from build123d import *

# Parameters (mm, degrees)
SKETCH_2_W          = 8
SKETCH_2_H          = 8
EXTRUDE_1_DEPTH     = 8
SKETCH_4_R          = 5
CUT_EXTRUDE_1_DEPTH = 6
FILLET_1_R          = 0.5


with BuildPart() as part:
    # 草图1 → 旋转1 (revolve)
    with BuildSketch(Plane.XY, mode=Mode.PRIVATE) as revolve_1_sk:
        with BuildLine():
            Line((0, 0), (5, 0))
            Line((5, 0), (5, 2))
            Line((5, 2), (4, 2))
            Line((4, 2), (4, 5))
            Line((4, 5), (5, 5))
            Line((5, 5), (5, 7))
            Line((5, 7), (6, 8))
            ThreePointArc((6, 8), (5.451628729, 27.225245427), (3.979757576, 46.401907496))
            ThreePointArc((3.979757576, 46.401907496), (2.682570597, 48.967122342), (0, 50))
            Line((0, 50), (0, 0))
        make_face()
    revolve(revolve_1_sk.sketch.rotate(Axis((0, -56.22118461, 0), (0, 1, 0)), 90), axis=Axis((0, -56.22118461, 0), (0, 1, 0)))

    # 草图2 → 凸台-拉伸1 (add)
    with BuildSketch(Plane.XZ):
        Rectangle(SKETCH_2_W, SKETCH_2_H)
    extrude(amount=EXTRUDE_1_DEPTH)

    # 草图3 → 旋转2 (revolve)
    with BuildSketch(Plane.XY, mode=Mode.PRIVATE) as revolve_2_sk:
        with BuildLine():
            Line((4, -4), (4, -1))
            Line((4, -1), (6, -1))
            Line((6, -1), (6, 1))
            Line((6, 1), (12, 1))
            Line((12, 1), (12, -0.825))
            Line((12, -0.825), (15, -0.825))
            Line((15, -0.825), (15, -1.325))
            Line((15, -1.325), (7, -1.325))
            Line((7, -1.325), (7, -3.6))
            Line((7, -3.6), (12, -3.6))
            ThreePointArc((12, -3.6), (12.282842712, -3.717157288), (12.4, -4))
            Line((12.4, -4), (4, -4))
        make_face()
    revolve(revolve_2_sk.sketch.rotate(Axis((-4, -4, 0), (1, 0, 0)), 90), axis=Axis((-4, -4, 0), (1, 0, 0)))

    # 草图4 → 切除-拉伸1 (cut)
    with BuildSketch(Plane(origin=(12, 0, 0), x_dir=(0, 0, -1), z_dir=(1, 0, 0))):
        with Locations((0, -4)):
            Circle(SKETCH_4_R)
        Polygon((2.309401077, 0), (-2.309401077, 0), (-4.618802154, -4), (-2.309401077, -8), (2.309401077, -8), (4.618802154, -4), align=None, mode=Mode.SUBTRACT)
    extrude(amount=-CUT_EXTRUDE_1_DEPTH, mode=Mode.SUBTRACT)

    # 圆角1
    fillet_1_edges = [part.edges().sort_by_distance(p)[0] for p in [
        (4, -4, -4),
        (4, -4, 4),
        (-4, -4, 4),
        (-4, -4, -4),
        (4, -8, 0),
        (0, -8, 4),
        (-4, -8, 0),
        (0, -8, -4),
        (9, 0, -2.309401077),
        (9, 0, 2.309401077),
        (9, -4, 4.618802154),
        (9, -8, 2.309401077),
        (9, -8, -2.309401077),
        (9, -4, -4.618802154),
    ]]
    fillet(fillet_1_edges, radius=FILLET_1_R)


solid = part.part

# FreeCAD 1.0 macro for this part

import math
import FreeCAD as App
import Part
import Sketcher

V = App.Vector
Q = App.Units.Quantity


def edges_at(feature, points):
    """Names of the edges that pass closest to the given points."""
    edges = feature.Shape.Edges
    near = lambda p: min(range(len(edges)), key=lambda i: edges[i].distToShape(Part.Vertex(*p))[0])
    return sorted({f"Edge{near(p) + 1}" for p in points})


def add_polygon(sketch, points):
    """Adds a closed chain of lines whose ends are joined by coincident constraints."""
    first, n = sketch.GeometryCount, len(points)
    for a, b in zip(points, points[1:] + points[:1]):
        sketch.addGeometry(Part.LineSegment(App.Vector(*a, 0), App.Vector(*b, 0)), False)
    for i in range(n):
        sketch.addConstraint(Sketcher.Constraint("Coincident", first + i, 2, first + (i + 1) % n, 1))

doc = App.newDocument("Part")
body = doc.addObject("PartDesign::Body", "Body")

sketch1 = doc.addObject("Sketcher::SketchObject", "Sketch")
body.addObject(sketch1)
sketch1.AttachmentSupport = (doc.XY_Plane, [""])
sketch1.MapMode = "FlatFace"
sketch1.addGeometry([
    Part.LineSegment(V(0, 0, 0), V(5, 0, 0)),
    Part.LineSegment(V(5, 0, 0), V(5, 2, 0)),
    Part.LineSegment(V(5, 2, 0), V(4, 2, 0)),
    Part.LineSegment(V(4, 2, 0), V(4, 5, 0)),
    Part.LineSegment(V(4, 5, 0), V(5, 5, 0)),
    Part.LineSegment(V(5, 5, 0), V(5, 7, 0)),
    Part.LineSegment(V(5, 7, 0), V(6, 8, 0)),
    Part.ArcOfCircle(Part.Circle(V(-394, 6.2, 0), V(0, 0, 1), 400), math.radians(0.26), math.radians(5.77)),
    Part.ArcOfCircle(Part.Circle(V(0, 46, 0), V(0, 0, 1), 4), math.radians(6), math.radians(90)),
    Part.LineSegment(V(0, 50, 0), V(0, 0, 0)),
], False)
sketch1.addConstraint([
    Sketcher.Constraint("Coincident", 0, 2, 1, 1),
    Sketcher.Constraint("Coincident", 1, 2, 2, 1),
    Sketcher.Constraint("Coincident", 2, 2, 3, 1),
    Sketcher.Constraint("Coincident", 3, 2, 4, 1),
    Sketcher.Constraint("Coincident", 4, 2, 5, 1),
    Sketcher.Constraint("Coincident", 5, 2, 6, 1),
    Sketcher.Constraint("Coincident", 6, 2, 7, 1),
    Sketcher.Constraint("Tangent", 7, 2, 8, 1),
    Sketcher.Constraint("Coincident", 8, 2, 9, 1),
    Sketcher.Constraint("Coincident", 9, 2, 0, 1),
    Sketcher.Constraint("Horizontal", 0),
    Sketcher.Constraint("Vertical", 1),
    Sketcher.Constraint("Horizontal", 2),
    Sketcher.Constraint("Vertical", 3),
    Sketcher.Constraint("Horizontal", 4),
    Sketcher.Constraint("Vertical", 5),
    Sketcher.Constraint("Vertical", 9),
    Sketcher.Constraint("Coincident", 9, 2, -1, 1),
    Sketcher.Constraint("PointOnObject", 8, 3, -2),
    Sketcher.Constraint("Vertical", 1, 2, 4, 2),
    Sketcher.Constraint("Equal", 1, 5),
    Sketcher.Constraint("Radius", 7, Q("400 mm")),
    Sketcher.Constraint("Radius", 8, Q("4 mm")),
    Sketcher.Constraint("DistanceX", 0, 1, 0, 2, Q("5 mm")),
    Sketcher.Constraint("DistanceX", 2, 2, 2, 1, Q("1 mm")),
    Sketcher.Constraint("DistanceY", 1, 1, 1, 2, Q("2 mm")),
    Sketcher.Constraint("DistanceY", 3, 1, 3, 2, Q("3 mm")),
    Sketcher.Constraint("DistanceY", 9, 2, 9, 1, Q("50 mm")),
    Sketcher.Constraint("Angle", 6, Q("45 deg")),
    Sketcher.Constraint("DistanceX", -1, 1, 6, 2, Q("6 mm")),
])
revolution = doc.addObject("PartDesign::Revolution", "Revolution")
body.addObject(revolution)
revolution.Profile = sketch1
revolution.ReferenceAxis = (sketch1, ["V_Axis"])
revolution.Angle = 360

sketch2 = doc.addObject("Sketcher::SketchObject", "Sketch001")
body.addObject(sketch2)
sketch2.AttachmentSupport = (doc.XZ_Plane, [""])
sketch2.MapMode = "FlatFace"
add_polygon(sketch2, [(-4, 4), (-4, -4), (4, -4), (4, 4)])
sketch2.addConstraint([
    Sketcher.Constraint("Vertical", 0),
    Sketcher.Constraint("Horizontal", 1),
    Sketcher.Constraint("Vertical", 2),
    Sketcher.Constraint("Horizontal", 3),
    Sketcher.Constraint("Symmetric", 0, 2, 2, 2, -1, 1),
    Sketcher.Constraint("Equal", 3, 0),
    Sketcher.Constraint("DistanceX", 1, 1, 1, 2, Q("8 mm")),
])
pad1 = doc.addObject("PartDesign::Pad", "Pad")
body.addObject(pad1)
pad1.Profile = sketch2
pad1.Length = 8

sketch3 = doc.addObject("Sketcher::SketchObject", "Sketch002")
body.addObject(sketch3)
sketch3.AttachmentSupport = (doc.XY_Plane, [""])
sketch3.MapMode = "FlatFace"
sketch3.addGeometry([
    Part.LineSegment(V(4, -1, 0), V(4, -4, 0)),
    Part.LineSegment(V(4, -4, 0), V(12.4, -4, 0)),
    Part.ArcOfCircle(Part.Circle(V(12, -4, 0), V(0, 0, 1), 0.4), math.radians(0), math.radians(90)),
    Part.LineSegment(V(12, -3.6, 0), V(7, -3.6, 0)),
    Part.LineSegment(V(7, -3.6, 0), V(7, -1.32, 0)),
    Part.LineSegment(V(7, -1.32, 0), V(15, -1.32, 0)),
    Part.LineSegment(V(15, -1.32, 0), V(15, -0.82, 0)),
    Part.LineSegment(V(15, -0.82, 0), V(12, -0.82, 0)),
    Part.LineSegment(V(12, -0.82, 0), V(12, 1, 0)),
    Part.LineSegment(V(12, 1, 0), V(6, 1, 0)),
    Part.LineSegment(V(6, 1, 0), V(6, -1, 0)),
    Part.LineSegment(V(6, -1, 0), V(4, -1, 0)),
], False)
sketch3.addGeometry(Part.LineSegment(V(4, -4, 0), V(15, -4, 0)), True)
sketch3.addConstraint([
    Sketcher.Constraint("Coincident", 0, 2, 1, 1),
    Sketcher.Constraint("Coincident", 1, 2, 2, 1),
    Sketcher.Constraint("Tangent", 2, 2, 3, 1),
    Sketcher.Constraint("Coincident", 3, 2, 4, 1),
    Sketcher.Constraint("Coincident", 4, 2, 5, 1),
    Sketcher.Constraint("Coincident", 5, 2, 6, 1),
    Sketcher.Constraint("Coincident", 6, 2, 7, 1),
    Sketcher.Constraint("Coincident", 7, 2, 8, 1),
    Sketcher.Constraint("Coincident", 8, 2, 9, 1),
    Sketcher.Constraint("Coincident", 9, 2, 10, 1),
    Sketcher.Constraint("Coincident", 10, 2, 11, 1),
    Sketcher.Constraint("Coincident", 11, 2, 0, 1),
    Sketcher.Constraint("Vertical", 0),
    Sketcher.Constraint("Horizontal", 1),
    Sketcher.Constraint("Horizontal", 3),
    Sketcher.Constraint("Vertical", 4),
    Sketcher.Constraint("Horizontal", 5),
    Sketcher.Constraint("Vertical", 6),
    Sketcher.Constraint("Horizontal", 7),
    Sketcher.Constraint("Vertical", 8),
    Sketcher.Constraint("Horizontal", 9),
    Sketcher.Constraint("Vertical", 10),
    Sketcher.Constraint("Horizontal", 11),
    Sketcher.Constraint("Horizontal", 12),
    Sketcher.Constraint("Coincident", 12, 1, 0, 2),
    Sketcher.Constraint("Horizontal", 2, 3, 0, 2),
    Sketcher.Constraint("Vertical", 2, 2, 7, 2),
    Sketcher.Constraint("Vertical", 6, 2, 12, 2),
    Sketcher.Constraint("Equal", 7, 0),
    Sketcher.Constraint("Equal", 11, 10),
    Sketcher.Constraint("Radius", 2, Q("0.4 mm")),
    Sketcher.Constraint("DistanceX", 3, 2, 3, 1, Q("5 mm")),
    Sketcher.Constraint("DistanceX", 5, 1, 5, 2, Q("8 mm")),
    Sketcher.Constraint("DistanceX", 9, 2, 9, 1, Q("6 mm")),
    Sketcher.Constraint("DistanceX", 11, 2, 11, 1, Q("2 mm")),
    Sketcher.Constraint("DistanceY", 6, 1, 6, 2, Q("0.5 mm")),
    Sketcher.Constraint("DistanceX", -1, 1, 2, 3, Q("12 mm")),
    Sketcher.Constraint("DistanceY", 2, 3, -1, 1, Q("4 mm")),
    Sketcher.Constraint("DistanceY", 4, 1, 4, 2, Q("2.275 mm")),
])
revolution2 = doc.addObject("PartDesign::Revolution", "Revolution001")
body.addObject(revolution2)
revolution2.Profile = sketch3
revolution2.ReferenceAxis = (sketch3, ["Axis0"])
revolution2.Angle = 360

sketch4 = doc.addObject("Sketcher::SketchObject", "Sketch003")
body.addObject(sketch4)
sketch4.AttachmentSupport = (doc.YZ_Plane, [""])
sketch4.MapMode = "FlatFace"
sketch4.AttachmentOffset = App.Placement(V(0, 0, 12), App.Rotation())
sketch4.addGeometry(Part.Circle(V(-4, 0, 0), V(0, 0, 1), 5), False)
add_polygon(sketch4, [(0, 2.3), (0, -2.3), (-4, -4.6), (-8, -2.3), (-8, 2.3), (-4, 4.6)])
sketch4.addConstraint([
    Sketcher.Constraint("Vertical", 1),
    Sketcher.Constraint("Vertical", 4),
    Sketcher.Constraint("Symmetric", 1, 2, 6, 2, -1, 1),
    Sketcher.Constraint("Symmetric", 2, 2, 5, 2, -1),
    Sketcher.Constraint("PointOnObject", 0, 3, -1),
    Sketcher.Constraint("Parallel", 2, 5),
    Sketcher.Constraint("Parallel", 3, 6),
    Sketcher.Constraint("Horizontal", 1, 2, 3, 2),
    Sketcher.Constraint("Vertical", 0, 3, 2, 2),
    Sketcher.Constraint("Diameter", 0, Q("10 mm")),
    Sketcher.Constraint("Angle", 2, Q("-150 deg")),
    Sketcher.Constraint("DistanceX", 0, 3, -1, 1, Q("4 mm")),
    Sketcher.Constraint("DistanceY", 1, 2, -1, 1, Q("2.309401 mm")),
])
pocket1 = doc.addObject("PartDesign::Pocket", "Pocket")
body.addObject(pocket1)
pocket1.Profile = sketch4
pocket1.Length = 6
doc.recompute()

fillet = doc.addObject("PartDesign::Fillet", "Fillet")
body.addObject(fillet)
fillet.Base = (pocket1, edges_at(pocket1, [
    (4, -4, -4),
    (4, -4, 4),
    (-4, -4, 4),
    (-4, -4, -4),
    (4, -8, 0),
    (0, -8, 4),
    (-4, -8, 0),
    (0, -8, -4),
    (9, 0, -2.309),
    (9, 0, 2.309),
    (9, -4, 4.619),
    (9, -8, 2.309),
    (9, -8, -2.309),
    (9, -4, -4.619),
]))
fillet.Radius = 0.5

doc.recompute()
